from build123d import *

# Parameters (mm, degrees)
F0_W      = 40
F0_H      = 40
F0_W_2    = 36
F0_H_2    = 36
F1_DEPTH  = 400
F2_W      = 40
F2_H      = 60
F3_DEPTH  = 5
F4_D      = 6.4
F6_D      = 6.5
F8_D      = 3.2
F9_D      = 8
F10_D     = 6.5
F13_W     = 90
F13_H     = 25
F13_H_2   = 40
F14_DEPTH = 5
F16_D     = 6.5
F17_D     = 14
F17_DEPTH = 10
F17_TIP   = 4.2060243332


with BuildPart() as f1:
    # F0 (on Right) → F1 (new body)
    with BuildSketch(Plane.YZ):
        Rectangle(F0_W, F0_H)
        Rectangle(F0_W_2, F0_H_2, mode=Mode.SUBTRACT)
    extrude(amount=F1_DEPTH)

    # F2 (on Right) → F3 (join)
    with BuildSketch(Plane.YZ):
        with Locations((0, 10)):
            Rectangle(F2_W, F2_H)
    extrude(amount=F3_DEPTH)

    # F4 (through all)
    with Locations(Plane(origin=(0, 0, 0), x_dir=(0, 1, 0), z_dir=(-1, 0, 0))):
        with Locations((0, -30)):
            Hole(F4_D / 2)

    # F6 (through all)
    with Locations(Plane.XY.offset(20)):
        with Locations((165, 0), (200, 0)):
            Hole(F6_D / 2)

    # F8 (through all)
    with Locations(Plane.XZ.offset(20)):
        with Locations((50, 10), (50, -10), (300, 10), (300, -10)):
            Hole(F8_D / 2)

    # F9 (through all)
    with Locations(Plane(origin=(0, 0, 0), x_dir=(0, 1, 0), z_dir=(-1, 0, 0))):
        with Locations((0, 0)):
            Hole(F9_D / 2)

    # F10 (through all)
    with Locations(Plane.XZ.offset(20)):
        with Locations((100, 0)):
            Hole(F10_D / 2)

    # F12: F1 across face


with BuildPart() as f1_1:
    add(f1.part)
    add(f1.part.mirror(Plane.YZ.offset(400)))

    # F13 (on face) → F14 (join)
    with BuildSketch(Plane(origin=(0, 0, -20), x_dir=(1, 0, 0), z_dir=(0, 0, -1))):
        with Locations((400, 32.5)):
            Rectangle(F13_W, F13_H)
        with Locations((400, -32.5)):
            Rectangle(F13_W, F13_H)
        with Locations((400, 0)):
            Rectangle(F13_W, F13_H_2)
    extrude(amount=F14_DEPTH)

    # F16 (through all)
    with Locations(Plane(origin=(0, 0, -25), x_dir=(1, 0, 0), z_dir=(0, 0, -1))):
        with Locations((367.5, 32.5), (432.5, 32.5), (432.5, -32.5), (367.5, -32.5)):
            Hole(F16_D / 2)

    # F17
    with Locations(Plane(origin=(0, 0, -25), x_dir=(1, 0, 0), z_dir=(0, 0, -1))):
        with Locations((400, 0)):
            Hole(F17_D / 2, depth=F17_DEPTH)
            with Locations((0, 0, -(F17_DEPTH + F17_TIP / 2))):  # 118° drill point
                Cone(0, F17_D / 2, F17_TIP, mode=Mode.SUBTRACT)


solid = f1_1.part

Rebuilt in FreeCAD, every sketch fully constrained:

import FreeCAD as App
import Part
import Sketcher
from FreeCAD import Vector


def add_polygon(sketch, points):
    """Adds a closed chain of lines whose ends are joined by coincident constraints."""
    first, n = sketch.GeometryCount, len(points)
    for a, b in zip(points, points[1:] + points[:1]):
        sketch.addGeometry(Part.LineSegment(App.Vector(*a, 0), App.Vector(*b, 0)), False)
    for i in range(n):
        sketch.addConstraint(Sketcher.Constraint("Coincident", first + i, 2, first + (i + 1) % n, 1))

doc = App.newDocument("Part")
params = doc.addObject("Spreadsheet::Sheet", "Params")
for row, (alias, value) in enumerate([
    ("sketch1_width", "40 mm"),
    ("sketch1_width2", "36 mm"),
    ("pad1_length", "400 mm"),
    ("sketch2_width", "40 mm"),
    ("sketch2_height", "60 mm"),
    ("pad2_length", "5 mm"),
    ("sketch3_diameter", "6.4 mm"),
    ("hole_diameter", "6.4 mm"),
    ("sketch4_diameter", "6.5 mm"),
    ("hole2_diameter", "6.5 mm"),
    ("sketch5_diameter", "3.2 mm"),
    ("hole3_diameter", "3.2 mm"),
    ("sketch6_diameter", "8 mm"),
    ("hole4_diameter", "8 mm"),
    ("sketch7_diameter", "6.5 mm"),
    ("hole5_diameter", "6.5 mm"),
    ("sketch8_width", "90 mm"),
    ("pad3_length", "5 mm"),
    ("sketch9_diameter", "6.5 mm"),
    ("hole6_diameter", "6.5 mm"),
    ("sketch10_diameter", "14 mm"),
    ("hole7_diameter", "14 mm"),
    ("hole7_depth", "10 mm"),
], start=1):
    params.set(f"A{row}", alias)
    params.set(f"B{row}", "=" + value)
    params.setAlias(f"B{row}", alias)

body = doc.addObject("PartDesign::Body", "Body")

sketch1 = doc.addObject("Sketcher::SketchObject", "Sketch")
body.addObject(sketch1)
sketch1.AttachmentSupport = (doc.YZ_Plane, [""])
sketch1.MapMode = "FlatFace"
add_polygon(sketch1, [(-20, 20), (-20, -20), (20, -20), (20, 20)])
add_polygon(sketch1, [(18, -18), (-18, -18), (-18, 18), (18, 18)])
sketch1.addConstraint([
    Sketcher.Constraint("Vertical", 0),
    Sketcher.Constraint("Horizontal", 1),
    Sketcher.Constraint("Vertical", 2),
    Sketcher.Constraint("Horizontal", 3),
    Sketcher.Constraint("Horizontal", 4),
    Sketcher.Constraint("Vertical", 5),
    Sketcher.Constraint("Horizontal", 6),
    Sketcher.Constraint("Vertical", 7),
    Sketcher.Constraint("Symmetric", 0, 2, 2, 2, -1, 1),
    Sketcher.Constraint("Symmetric", 4, 2, 6, 2, -1, 1),
    Sketcher.Constraint("Equal", 3, 0),
    Sketcher.Constraint("Equal", 6, 5),
    Sketcher.Constraint("DistanceX", 1, 1, 1, 2, 40.0),
    Sketcher.Constraint("DistanceX", 4, 2, 4, 1, 36.0),
])
sketch1.setExpression("Constraints[20]", "Params.sketch1_width")
sketch1.setExpression("Constraints[21]", "Params.sketch1_width2")
pad1 = doc.addObject("PartDesign::Pad", "Pad")
body.addObject(pad1)
pad1.Profile = sketch1
pad1.setExpression("Length", "Params.pad1_length")

sketch2 = doc.addObject("Sketcher::SketchObject", "Sketch001")
body.addObject(sketch2)
sketch2.AttachmentSupport = (doc.YZ_Plane, [""])
sketch2.MapMode = "FlatFace"
add_polygon(sketch2, [(-20, 40), (-20, -20), (20, -20), (20, 40)])
sketch2.addConstraint([
    Sketcher.Constraint("Vertical", 0),
    Sketcher.Constraint("Horizontal", 1),
    Sketcher.Constraint("Vertical", 2),
    Sketcher.Constraint("Horizontal", 3),
    Sketcher.Constraint("DistanceX", 1, 1, 1, 2, 40.0),
    Sketcher.Constraint("DistanceY", 0, 2, 0, 1, 60.0),
    Sketcher.Constraint("DistanceX", 0, 2, -1, 1, 20.0),
    Sketcher.Constraint("DistanceY", 0, 2, -1, 1, 20.0),
])
sketch2.setExpression("Constraints[8]", "Params.sketch2_width")
sketch2.setExpression("Constraints[9]", "Params.sketch2_height")
pad2 = doc.addObject("PartDesign::Pad", "Pad001")
body.addObject(pad2)
pad2.Profile = sketch2
pad2.setExpression("Length", "Params.pad2_length")

sketch3 = doc.addObject("Sketcher::SketchObject", "Sketch002")
body.addObject(sketch3)
sketch3.AttachmentSupport = (doc.YZ_Plane, [""])
sketch3.MapMode = "FlatFace"
sketch3.addGeometry(Part.Circle(Vector(0, 30, 0), Vector(0, 0, 1), 3.2), False)
sketch3.addConstraint([
    Sketcher.Constraint("PointOnObject", 0, 3, -2),
    Sketcher.Constraint("Diameter", 0, 6.4),
    Sketcher.Constraint("DistanceY", -1, 1, 0, 3, 30.0),
])
sketch3.setExpression("Constraints[1]", "Params.sketch3_diameter")
doc.recompute()
hole = doc.addObject("PartDesign::Hole", "Hole")
body.addObject(hole)
hole.Profile = sketch3
hole.ThreadType = "None"
hole.setExpression("Diameter", "Params.hole_diameter")
hole.DepthType = "ThroughAll"
hole.Reversed = True

sketch4 = doc.addObject("Sketcher::SketchObject", "Sketch003")
body.addObject(sketch4)
sketch4.AttachmentSupport = (doc.XY_Plane, [""])
sketch4.MapMode = "FlatFace"
sketch4.AttachmentOffset = App.Placement(Vector(0, 0, 20), App.Rotation())
sketch4.addGeometry([
    Part.Circle(Vector(165, 0, 0), Vector(0, 0, 1), 3.2),
    Part.Circle(Vector(200, 0, 0), Vector(0, 0, 1), 3.2),
], False)
sketch4.addConstraint([
    Sketcher.Constraint("Equal", 0, 1),
    Sketcher.Constraint("PointOnObject", 0, 3, -1),
    Sketcher.Constraint("PointOnObject", 1, 3, -1),
    Sketcher.Constraint("Diameter", 0, 6.5),
    Sketcher.Constraint("DistanceX", -1, 1, 0, 3, 165.0),
    Sketcher.Constraint("DistanceX", -1, 1, 1, 3, 200.0),
])
sketch4.setExpression("Constraints[3]", "Params.sketch4_diameter")
doc.recompute()
hole2 = doc.addObject("PartDesign::Hole", "Hole001")
body.addObject(hole2)
hole2.Profile = sketch4
hole2.ThreadType = "None"
hole2.setExpression("Diameter", "Params.hole2_diameter")
hole2.DepthType = "ThroughAll"

sketch5 = doc.addObject("Sketcher::SketchObject", "Sketch004")
body.addObject(sketch5)
sketch5.AttachmentSupport = (doc.XZ_Plane, [""])
sketch5.MapMode = "FlatFace"
sketch5.AttachmentOffset = App.Placement(Vector(0, 0, 20), App.Rotation())
sketch5.addGeometry([
    Part.Circle(Vector(50, 10, 0), Vector(0, 0, 1), 1.6),
    Part.Circle(Vector(50, -10, 0), Vector(0, 0, 1), 1.6),
    Part.Circle(Vector(300, 10, 0), Vector(0, 0, 1), 1.6),
    Part.Circle(Vector(300, -10, 0), Vector(0, 0, 1), 1.6),
], False)
sketch5.addConstraint([
    Sketcher.Constraint("Equal", 0, 1),
    Sketcher.Constraint("Equal", 1, 2),
    Sketcher.Constraint("Equal", 2, 3),
    Sketcher.Constraint("Symmetric", 0, 3, 1, 3, -1),
    Sketcher.Constraint("Symmetric", 2, 3, 3, 3, -1),
    Sketcher.Constraint("Horizontal", 0, 3, 2, 3),
    Sketcher.Constraint("Diameter", 0, 3.2),
    Sketcher.Constraint("DistanceX", -1, 1, 0, 3, 50.0),
    Sketcher.Constraint("DistanceY", -1, 1, 0, 3, 10.0),
    Sketcher.Constraint("DistanceX", -1, 1, 2, 3, 300.0),
])
sketch5.setExpression("Constraints[6]", "Params.sketch5_diameter")
doc.recompute()
hole3 = doc.addObject("PartDesign::Hole", "Hole002")
body.addObject(hole3)
hole3.Profile = sketch5
hole3.ThreadType = "None"
hole3.setExpression("Diameter", "Params.hole3_diameter")
hole3.DepthType = "ThroughAll"

sketch6 = doc.addObject("Sketcher::SketchObject", "Sketch005")
body.addObject(sketch6)
sketch6.AttachmentSupport = (doc.YZ_Plane, [""])
sketch6.MapMode = "FlatFace"
sketch6.addGeometry(Part.Circle(Vector(0, 0, 0), Vector(0, 0, 1), 4), False)
sketch6.addConstraint([
    Sketcher.Constraint("Coincident", 0, 3, -1, 1),
    Sketcher.Constraint("Diameter", 0, 8.0),
])
sketch6.setExpression("Constraints[1]", "Params.sketch6_diameter")
doc.recompute()
hole4 = doc.addObject("PartDesign::Hole", "Hole003")
body.addObject(hole4)
hole4.Profile = sketch6
hole4.ThreadType = "None"
hole4.setExpression("Diameter", "Params.hole4_diameter")
hole4.DepthType = "ThroughAll"
hole4.Reversed = True

sketch7 = doc.addObject("Sketcher::SketchObject", "Sketch006")
body.addObject(sketch7)
sketch7.AttachmentSupport = (doc.XZ_Plane, [""])
sketch7.MapMode = "FlatFace"
sketch7.AttachmentOffset = App.Placement(Vector(0, 0, 20), App.Rotation())
sketch7.addGeometry(Part.Circle(Vector(100, 0, 0), Vector(0, 0, 1), 3.2), False)
sketch7.addConstraint([
    Sketcher.Constraint("PointOnObject", 0, 3, -1),
    Sketcher.Constraint("Diameter", 0, 6.5),
    Sketcher.Constraint("DistanceX", -1, 1, 0, 3, 100.0),
])
sketch7.setExpression("Constraints[1]", "Params.sketch7_diameter")
doc.recompute()
hole5 = doc.addObject("PartDesign::Hole", "Hole004")
body.addObject(hole5)
hole5.Profile = sketch7
hole5.ThreadType = "None"
hole5.setExpression("Diameter", "Params.hole5_diameter")
hole5.DepthType = "ThroughAll"
body2 = doc.addObject("PartDesign::Body", "Body001")
doc.recompute()

body2.BaseFeature = body
doc.recompute()

mirroring = doc.addObject("Part::Mirroring", "Mirroring")
mirroring.Source = body
mirroring.Base = Vector(400, 0, 0)
mirroring.Normal = Vector(1, 0, 0)
body3 = doc.addObject("PartDesign::Body", "Body002")
body3.BaseFeature = mirroring
boolean = doc.addObject("PartDesign::Boolean", "Boolean")
body2.addObject(boolean)
boolean.Type = "Fuse"
boolean.addObjects([body3])
doc.recompute()

sketch8 = doc.addObject("Sketcher::SketchObject", "Sketch007")
body2.addObject(sketch8)
sketch8.AttachmentSupport = (doc.getObject("XY_Plane001"), [""])
sketch8.MapMode = "FlatFace"
sketch8.AttachmentOffset = App.Placement(Vector(0, 0, -20), App.Rotation())
add_polygon(sketch8, [(355, -45), (355, 45), (445, 45), (445, -45)])
sketch8.addConstraint([
    Sketcher.Constraint("Vertical", 0),
    Sketcher.Constraint("Horizontal", 1),
    Sketcher.Constraint("Vertical", 2),
    Sketcher.Constraint("Horizontal", 3),
    Sketcher.Constraint("Equal", 3, 0),
    Sketcher.Constraint("DistanceX", 1, 1, 1, 2, 90.0),
    Sketcher.Constraint("DistanceX", -1, 1, 0, 2, 355.0),
    Sketcher.Constraint("DistanceY", -1, 1, 0, 2, 45.0),
])
sketch8.setExpression("Constraints[9]", "Params.sketch8_width")
pad3 = doc.addObject("PartDesign::Pad", "Pad002")
body2.addObject(pad3)
pad3.Profile = sketch8
pad3.setExpression("Length", "Params.pad3_length")
pad3.Reversed = True

sketch9 = doc.addObject("Sketcher::SketchObject", "Sketch008")
body2.addObject(sketch9)
sketch9.AttachmentSupport = (doc.getObject("XY_Plane001"), [""])
sketch9.MapMode = "FlatFace"
sketch9.AttachmentOffset = App.Placement(Vector(0, 0, -25), App.Rotation())
sketch9.addGeometry([
    Part.Circle(Vector(367.5, -32.5, 0), Vector(0, 0, 1), 3.2),
    Part.Circle(Vector(432.5, -32.5, 0), Vector(0, 0, 1), 3.2),
    Part.Circle(Vector(432.5, 32.5, 0), Vector(0, 0, 1), 3.2),
    Part.Circle(Vector(367.5, 32.5, 0), Vector(0, 0, 1), 3.2),
], False)
sketch9.addConstraint([
    Sketcher.Constraint("Equal", 0, 1),
    Sketcher.Constraint("Equal", 1, 2),
    Sketcher.Constraint("Equal", 2, 3),
    Sketcher.Constraint("Symmetric", 1, 3, 2, 3, -1),
    Sketcher.Constraint("Symmetric", 0, 3, 3, 3, -1),
    Sketcher.Constraint("Horizontal", 0, 3, 1, 3),
    Sketcher.Constraint("Diameter", 0, 6.5),
    Sketcher.Constraint("DistanceX", 0, 3, 1, 3, 65.0),
    Sketcher.Constraint("DistanceY", 1, 3, 2, 3, 65.0),
    Sketcher.Constraint("DistanceX", -1, 1, 0, 3, 367.5),
])
sketch9.setExpression("Constraints[6]", "Params.sketch9_diameter")
doc.recompute()
hole6 = doc.addObject("PartDesign::Hole", "Hole005")
body2.addObject(hole6)
hole6.Profile = sketch9
hole6.ThreadType = "None"
hole6.setExpression("Diameter", "Params.hole6_diameter")
hole6.DepthType = "ThroughAll"
hole6.Reversed = True

sketch10 = doc.addObject("Sketcher::SketchObject", "Sketch009")
body2.addObject(sketch10)
sketch10.AttachmentSupport = (doc.getObject("XY_Plane001"), [""])
sketch10.MapMode = "FlatFace"
sketch10.AttachmentOffset = App.Placement(Vector(0, 0, -25), App.Rotation())
sketch10.addGeometry(Part.Circle(Vector(400, 0, 0), Vector(0, 0, 1), 7), False)
sketch10.addConstraint([
    Sketcher.Constraint("PointOnObject", 0, 3, -1),
    Sketcher.Constraint("Diameter", 0, 14.0),
    Sketcher.Constraint("DistanceX", -1, 1, 0, 3, 400.0),
])
sketch10.setExpression("Constraints[1]", "Params.sketch10_diameter")
doc.recompute()
hole7 = doc.addObject("PartDesign::Hole", "Hole006")
body2.addObject(hole7)
hole7.Profile = sketch10
hole7.ThreadType = "None"
hole7.setExpression("Diameter", "Params.hole7_diameter")
hole7.DepthType = "Dimension"
hole7.setExpression("Depth", "Params.hole7_depth")
hole7.DrillPoint = "Angled"
hole7.DrillPointAngle = 118
hole7.Reversed = True
mirroring.Visibility = False

doc.recompute()
